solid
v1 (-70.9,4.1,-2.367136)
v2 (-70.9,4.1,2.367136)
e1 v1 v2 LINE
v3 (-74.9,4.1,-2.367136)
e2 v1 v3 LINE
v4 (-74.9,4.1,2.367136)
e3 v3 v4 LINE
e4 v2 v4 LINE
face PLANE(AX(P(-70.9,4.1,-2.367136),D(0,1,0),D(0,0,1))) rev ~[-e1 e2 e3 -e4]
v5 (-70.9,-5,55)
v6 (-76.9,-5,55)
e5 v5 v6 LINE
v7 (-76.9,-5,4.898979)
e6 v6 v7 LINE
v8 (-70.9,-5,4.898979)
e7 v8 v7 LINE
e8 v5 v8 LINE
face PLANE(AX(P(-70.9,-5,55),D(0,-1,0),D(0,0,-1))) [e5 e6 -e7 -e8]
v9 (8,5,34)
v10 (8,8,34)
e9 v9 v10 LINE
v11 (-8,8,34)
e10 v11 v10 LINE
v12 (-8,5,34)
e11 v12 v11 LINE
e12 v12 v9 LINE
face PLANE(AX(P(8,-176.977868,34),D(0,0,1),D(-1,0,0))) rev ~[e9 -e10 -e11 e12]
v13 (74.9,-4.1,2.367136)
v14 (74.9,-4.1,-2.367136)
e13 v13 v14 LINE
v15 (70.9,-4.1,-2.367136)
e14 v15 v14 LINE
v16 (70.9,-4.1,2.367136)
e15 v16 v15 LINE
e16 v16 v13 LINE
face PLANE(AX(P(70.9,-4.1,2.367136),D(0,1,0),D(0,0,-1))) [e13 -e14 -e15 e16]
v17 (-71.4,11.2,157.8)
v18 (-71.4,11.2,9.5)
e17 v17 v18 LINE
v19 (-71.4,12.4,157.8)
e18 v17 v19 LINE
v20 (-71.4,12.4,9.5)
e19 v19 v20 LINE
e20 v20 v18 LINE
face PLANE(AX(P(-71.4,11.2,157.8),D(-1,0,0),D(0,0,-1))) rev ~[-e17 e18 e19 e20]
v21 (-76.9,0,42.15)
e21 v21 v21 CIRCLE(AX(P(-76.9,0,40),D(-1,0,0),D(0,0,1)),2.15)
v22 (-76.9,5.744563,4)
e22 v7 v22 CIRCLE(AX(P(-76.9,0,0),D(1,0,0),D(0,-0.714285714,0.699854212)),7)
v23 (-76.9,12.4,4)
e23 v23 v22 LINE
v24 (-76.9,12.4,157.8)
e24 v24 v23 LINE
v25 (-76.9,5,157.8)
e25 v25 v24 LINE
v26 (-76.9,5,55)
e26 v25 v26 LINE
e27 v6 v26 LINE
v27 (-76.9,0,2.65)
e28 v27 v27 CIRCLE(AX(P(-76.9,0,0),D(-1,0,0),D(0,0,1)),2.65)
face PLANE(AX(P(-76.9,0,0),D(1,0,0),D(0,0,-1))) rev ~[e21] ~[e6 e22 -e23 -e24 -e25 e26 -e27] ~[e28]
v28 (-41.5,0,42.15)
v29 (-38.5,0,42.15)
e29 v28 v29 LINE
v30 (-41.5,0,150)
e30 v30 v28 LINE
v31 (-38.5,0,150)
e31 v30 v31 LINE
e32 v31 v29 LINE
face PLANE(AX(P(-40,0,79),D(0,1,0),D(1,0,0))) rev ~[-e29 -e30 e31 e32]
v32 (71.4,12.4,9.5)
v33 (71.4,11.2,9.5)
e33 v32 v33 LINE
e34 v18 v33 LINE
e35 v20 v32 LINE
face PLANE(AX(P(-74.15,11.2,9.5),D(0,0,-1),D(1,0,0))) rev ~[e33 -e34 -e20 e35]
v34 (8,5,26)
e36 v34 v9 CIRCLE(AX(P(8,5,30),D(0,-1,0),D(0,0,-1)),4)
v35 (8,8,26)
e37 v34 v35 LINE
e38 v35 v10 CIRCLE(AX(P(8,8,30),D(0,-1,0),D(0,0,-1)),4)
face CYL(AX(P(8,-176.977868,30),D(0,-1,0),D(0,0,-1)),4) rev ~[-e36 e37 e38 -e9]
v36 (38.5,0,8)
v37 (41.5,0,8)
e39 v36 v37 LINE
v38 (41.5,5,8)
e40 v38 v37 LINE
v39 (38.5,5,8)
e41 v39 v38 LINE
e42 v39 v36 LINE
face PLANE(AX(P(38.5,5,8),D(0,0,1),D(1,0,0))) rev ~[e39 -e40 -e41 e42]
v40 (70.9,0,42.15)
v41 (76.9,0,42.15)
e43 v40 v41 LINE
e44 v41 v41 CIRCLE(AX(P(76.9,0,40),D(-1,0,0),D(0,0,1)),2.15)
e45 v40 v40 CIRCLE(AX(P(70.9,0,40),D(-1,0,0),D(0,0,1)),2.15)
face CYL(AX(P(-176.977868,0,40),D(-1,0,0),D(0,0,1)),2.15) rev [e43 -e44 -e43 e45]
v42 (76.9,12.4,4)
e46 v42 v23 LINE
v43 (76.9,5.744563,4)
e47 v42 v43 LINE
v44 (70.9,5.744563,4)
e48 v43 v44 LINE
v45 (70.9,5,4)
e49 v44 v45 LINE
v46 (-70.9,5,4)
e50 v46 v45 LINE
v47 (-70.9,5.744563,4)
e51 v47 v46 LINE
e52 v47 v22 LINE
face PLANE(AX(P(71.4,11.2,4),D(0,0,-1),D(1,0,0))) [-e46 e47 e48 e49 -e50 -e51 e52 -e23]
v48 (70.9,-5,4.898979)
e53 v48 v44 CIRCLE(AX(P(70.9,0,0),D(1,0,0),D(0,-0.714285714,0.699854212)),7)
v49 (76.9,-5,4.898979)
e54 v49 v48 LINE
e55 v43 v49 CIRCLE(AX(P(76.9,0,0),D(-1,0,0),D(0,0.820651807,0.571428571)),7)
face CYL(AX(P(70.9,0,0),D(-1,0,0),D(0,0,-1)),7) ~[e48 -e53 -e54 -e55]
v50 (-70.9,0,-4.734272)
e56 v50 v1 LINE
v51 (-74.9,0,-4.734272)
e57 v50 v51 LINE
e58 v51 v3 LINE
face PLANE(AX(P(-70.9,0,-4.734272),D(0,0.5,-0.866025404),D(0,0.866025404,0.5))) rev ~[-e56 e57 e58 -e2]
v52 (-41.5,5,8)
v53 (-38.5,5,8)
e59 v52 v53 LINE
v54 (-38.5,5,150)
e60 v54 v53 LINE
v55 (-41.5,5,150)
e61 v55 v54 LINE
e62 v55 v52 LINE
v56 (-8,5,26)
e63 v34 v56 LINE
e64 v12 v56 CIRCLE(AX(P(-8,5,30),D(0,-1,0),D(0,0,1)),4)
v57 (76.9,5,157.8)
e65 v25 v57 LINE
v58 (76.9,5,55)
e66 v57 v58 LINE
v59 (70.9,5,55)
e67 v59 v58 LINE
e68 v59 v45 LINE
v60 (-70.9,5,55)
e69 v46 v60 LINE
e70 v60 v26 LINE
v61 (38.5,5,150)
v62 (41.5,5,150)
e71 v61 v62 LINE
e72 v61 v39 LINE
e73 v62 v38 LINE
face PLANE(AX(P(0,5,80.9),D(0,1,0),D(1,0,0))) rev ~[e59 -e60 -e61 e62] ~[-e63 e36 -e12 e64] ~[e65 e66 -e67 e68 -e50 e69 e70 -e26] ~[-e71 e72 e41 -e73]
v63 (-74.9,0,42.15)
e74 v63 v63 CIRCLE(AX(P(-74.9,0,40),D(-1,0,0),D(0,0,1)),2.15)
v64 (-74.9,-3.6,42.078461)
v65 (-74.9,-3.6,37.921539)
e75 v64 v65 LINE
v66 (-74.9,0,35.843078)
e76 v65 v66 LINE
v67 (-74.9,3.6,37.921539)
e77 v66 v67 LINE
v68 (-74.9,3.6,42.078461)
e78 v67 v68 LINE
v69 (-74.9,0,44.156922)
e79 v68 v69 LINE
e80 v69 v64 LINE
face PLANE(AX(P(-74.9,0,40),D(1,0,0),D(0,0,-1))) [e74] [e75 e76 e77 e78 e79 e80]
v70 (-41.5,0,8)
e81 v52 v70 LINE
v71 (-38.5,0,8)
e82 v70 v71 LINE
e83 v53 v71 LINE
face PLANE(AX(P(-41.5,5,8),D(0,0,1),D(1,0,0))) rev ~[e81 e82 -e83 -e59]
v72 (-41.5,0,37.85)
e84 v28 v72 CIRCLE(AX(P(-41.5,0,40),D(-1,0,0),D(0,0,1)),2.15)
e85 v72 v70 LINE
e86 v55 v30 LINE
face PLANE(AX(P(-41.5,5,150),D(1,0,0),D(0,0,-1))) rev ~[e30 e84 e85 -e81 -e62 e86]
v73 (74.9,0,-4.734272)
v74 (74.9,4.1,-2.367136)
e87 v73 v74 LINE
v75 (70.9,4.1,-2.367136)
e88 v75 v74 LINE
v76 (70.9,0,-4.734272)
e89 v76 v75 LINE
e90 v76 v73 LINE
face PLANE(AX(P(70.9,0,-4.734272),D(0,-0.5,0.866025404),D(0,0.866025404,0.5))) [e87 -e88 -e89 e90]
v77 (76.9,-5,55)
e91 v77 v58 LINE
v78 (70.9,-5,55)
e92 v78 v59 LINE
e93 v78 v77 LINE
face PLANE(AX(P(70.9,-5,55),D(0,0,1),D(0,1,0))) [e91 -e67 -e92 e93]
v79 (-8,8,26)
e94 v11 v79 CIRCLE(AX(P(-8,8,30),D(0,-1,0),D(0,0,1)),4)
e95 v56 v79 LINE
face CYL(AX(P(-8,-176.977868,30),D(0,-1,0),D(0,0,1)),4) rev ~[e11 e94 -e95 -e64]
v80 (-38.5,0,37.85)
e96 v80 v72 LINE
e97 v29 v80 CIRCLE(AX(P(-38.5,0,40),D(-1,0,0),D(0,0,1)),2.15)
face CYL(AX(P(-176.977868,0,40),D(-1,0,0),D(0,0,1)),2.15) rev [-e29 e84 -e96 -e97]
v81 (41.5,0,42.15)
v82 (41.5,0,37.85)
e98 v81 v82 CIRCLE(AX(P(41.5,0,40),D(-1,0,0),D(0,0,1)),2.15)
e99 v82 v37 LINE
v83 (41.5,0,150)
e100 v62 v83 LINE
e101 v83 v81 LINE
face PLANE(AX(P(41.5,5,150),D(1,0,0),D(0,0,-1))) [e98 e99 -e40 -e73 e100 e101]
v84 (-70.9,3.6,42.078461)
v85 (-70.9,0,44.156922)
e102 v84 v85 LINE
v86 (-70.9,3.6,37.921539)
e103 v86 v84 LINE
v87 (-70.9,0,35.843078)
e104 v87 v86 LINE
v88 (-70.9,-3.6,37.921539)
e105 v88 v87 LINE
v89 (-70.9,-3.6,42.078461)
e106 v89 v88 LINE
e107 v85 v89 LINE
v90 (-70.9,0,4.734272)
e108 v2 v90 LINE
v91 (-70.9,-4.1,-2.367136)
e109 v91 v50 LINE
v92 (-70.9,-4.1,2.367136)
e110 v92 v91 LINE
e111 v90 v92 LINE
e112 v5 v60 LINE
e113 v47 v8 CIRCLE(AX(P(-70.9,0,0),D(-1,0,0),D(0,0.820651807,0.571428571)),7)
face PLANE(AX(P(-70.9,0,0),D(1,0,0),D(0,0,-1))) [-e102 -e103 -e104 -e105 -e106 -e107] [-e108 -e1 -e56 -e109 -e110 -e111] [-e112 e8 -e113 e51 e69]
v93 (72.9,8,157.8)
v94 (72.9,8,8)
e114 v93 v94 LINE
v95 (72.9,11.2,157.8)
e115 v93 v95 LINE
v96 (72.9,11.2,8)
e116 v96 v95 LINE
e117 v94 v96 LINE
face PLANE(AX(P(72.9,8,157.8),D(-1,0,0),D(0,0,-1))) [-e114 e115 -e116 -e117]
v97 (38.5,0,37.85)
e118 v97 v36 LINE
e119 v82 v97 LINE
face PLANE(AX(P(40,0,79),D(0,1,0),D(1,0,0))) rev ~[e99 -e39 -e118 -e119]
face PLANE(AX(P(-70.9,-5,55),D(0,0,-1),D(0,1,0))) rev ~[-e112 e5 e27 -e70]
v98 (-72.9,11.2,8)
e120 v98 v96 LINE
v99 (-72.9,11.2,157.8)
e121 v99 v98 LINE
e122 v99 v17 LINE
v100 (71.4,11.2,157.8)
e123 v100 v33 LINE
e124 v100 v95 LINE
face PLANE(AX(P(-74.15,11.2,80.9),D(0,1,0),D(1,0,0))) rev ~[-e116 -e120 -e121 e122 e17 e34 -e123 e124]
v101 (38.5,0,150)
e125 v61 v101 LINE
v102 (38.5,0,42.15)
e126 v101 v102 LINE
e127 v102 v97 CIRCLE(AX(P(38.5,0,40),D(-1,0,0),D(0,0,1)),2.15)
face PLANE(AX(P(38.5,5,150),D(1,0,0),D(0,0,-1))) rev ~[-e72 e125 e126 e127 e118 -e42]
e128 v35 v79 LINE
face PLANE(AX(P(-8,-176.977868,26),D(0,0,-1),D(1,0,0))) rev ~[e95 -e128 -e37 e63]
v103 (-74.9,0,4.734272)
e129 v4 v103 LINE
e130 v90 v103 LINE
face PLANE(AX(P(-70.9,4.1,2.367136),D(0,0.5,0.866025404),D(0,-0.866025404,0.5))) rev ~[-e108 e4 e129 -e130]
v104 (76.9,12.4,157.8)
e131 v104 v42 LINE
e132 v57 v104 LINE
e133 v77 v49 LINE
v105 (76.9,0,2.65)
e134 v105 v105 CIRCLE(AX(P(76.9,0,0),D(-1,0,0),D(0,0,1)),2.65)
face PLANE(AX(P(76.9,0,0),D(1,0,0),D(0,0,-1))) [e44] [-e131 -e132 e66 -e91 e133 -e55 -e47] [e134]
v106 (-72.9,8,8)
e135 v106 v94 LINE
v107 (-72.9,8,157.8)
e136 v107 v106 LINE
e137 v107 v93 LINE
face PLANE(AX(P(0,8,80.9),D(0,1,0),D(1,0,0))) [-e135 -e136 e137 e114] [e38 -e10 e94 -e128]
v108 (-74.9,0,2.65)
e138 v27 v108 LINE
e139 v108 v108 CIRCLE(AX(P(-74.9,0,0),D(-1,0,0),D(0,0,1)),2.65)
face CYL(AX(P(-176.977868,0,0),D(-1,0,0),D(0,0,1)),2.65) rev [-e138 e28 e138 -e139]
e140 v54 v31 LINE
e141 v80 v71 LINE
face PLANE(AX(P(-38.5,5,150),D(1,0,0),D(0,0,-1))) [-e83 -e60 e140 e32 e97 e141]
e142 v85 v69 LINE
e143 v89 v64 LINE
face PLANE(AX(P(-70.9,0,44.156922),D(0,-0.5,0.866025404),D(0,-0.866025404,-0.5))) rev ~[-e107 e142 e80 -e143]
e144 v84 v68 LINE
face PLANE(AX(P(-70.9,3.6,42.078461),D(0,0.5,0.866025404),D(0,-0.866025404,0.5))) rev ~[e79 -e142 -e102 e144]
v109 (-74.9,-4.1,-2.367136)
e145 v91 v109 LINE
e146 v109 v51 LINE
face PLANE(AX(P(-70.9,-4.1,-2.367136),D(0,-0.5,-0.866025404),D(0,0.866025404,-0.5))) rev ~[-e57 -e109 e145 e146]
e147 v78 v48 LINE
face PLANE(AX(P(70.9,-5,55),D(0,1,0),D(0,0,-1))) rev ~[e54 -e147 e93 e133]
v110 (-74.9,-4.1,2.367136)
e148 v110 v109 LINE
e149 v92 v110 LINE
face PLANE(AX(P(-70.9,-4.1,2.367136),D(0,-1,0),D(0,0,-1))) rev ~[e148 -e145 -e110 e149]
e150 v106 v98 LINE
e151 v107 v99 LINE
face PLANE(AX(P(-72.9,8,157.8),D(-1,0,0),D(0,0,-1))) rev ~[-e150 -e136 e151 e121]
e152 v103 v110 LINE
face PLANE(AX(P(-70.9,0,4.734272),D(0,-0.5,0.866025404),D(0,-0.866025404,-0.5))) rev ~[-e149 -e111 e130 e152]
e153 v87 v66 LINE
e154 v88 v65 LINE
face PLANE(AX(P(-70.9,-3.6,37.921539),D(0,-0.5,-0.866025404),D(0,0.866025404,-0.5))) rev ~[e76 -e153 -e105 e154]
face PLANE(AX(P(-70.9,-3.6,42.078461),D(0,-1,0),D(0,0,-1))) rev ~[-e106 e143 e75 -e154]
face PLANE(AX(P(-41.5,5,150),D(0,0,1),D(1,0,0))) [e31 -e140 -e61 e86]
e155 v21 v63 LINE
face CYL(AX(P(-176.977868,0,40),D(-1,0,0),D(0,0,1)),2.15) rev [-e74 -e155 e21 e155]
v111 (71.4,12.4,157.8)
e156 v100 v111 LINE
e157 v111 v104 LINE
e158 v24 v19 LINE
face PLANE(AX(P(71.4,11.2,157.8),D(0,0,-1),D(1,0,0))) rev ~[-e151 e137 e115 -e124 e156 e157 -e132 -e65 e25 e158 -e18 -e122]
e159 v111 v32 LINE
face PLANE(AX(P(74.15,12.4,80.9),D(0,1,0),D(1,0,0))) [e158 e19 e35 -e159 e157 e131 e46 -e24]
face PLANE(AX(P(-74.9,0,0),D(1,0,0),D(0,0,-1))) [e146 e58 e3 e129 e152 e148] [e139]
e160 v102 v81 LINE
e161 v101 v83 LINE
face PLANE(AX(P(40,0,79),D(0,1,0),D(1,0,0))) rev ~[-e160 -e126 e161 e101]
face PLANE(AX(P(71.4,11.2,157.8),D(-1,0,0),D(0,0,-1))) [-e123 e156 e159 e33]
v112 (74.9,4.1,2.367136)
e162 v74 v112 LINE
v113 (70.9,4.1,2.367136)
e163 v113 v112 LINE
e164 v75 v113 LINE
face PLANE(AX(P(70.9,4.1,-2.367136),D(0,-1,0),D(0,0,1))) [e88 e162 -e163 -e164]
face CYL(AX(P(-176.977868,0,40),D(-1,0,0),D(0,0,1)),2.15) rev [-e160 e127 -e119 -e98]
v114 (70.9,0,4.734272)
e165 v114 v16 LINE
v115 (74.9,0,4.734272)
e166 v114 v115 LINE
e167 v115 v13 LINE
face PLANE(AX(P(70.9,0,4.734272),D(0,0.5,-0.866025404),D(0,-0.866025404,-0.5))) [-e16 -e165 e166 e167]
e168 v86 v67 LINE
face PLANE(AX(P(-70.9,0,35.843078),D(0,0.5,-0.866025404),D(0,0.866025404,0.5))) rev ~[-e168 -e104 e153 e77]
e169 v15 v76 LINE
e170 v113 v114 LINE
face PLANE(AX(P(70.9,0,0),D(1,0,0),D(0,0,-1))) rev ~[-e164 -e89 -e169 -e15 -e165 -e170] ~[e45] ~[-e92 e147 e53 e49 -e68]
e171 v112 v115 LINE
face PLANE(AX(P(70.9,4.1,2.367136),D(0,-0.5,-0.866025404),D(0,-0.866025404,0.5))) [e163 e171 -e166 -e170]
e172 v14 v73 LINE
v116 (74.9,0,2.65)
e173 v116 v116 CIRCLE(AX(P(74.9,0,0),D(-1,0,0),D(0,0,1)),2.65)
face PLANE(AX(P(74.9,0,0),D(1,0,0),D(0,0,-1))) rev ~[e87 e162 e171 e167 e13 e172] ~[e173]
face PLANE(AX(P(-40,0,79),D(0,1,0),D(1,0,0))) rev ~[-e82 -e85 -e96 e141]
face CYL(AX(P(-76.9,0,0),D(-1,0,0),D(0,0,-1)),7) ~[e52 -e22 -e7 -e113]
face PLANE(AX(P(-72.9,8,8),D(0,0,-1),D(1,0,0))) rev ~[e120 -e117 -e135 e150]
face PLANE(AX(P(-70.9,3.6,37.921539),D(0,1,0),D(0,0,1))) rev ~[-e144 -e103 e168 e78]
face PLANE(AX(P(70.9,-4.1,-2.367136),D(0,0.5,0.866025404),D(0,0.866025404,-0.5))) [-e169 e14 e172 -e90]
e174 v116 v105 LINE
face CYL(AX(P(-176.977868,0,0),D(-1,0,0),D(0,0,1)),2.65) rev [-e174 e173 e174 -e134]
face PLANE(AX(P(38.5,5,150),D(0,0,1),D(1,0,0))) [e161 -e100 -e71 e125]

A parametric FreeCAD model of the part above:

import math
import FreeCAD as App
import Part
import Sketcher
Q = App.Units.Quantity

doc = App.newDocument("Part")
body = doc.addObject("PartDesign::Body", "Body")

sketch1 = body.newObject("Sketcher::SketchObject", "Sketch")
sketch1.AttachmentSupport = (doc.getObject("XZ_Plane"), [""])
sketch1.MapMode = "FlatFace"
sketch1.AttachmentOffset = App.Placement(App.Vector(0, 0, -5), App.Rotation())
sketch1.addGeometry([
    Part.LineSegment(App.Vector(-77, 4, 0), App.Vector(-77, 158, 0)),
    Part.LineSegment(App.Vector(-77, 158, 0), App.Vector(77, 158, 0)),
    Part.LineSegment(App.Vector(77, 158, 0), App.Vector(77, 4, 0)),
    Part.LineSegment(App.Vector(77, 4, 0), App.Vector(-77, 4, 0)),
], False)
sketch1.addConstraint([
    Sketcher.Constraint("Coincident", 0, 2, 1, 1),
    Sketcher.Constraint("Coincident", 1, 2, 2, 1),
    Sketcher.Constraint("Coincident", 2, 2, 3, 1),
    Sketcher.Constraint("Coincident", 3, 2, 0, 1),
    Sketcher.Constraint("Vertical", 0),
    Sketcher.Constraint("Horizontal", 1),
    Sketcher.Constraint("Vertical", 2),
    Sketcher.Constraint("Horizontal", 3),
    Sketcher.Constraint("Equal", 3, 0),
    Sketcher.Constraint("DistanceX", 1, 1, 1, 2, 153.8),
    Sketcher.Constraint("DistanceY", -1, 1, 2, 2, 4.0),
    Sketcher.Constraint("DistanceX", 0, 2, -1, 1, 76.9),
])
pad1 = body.newObject("PartDesign::Pad", "Pad")
pad1.Profile = sketch1
pad1.Length = 3
pad1.Reversed = True

sketch2 = body.newObject("Sketcher::SketchObject", "Sketch001")
sketch2.AttachmentSupport = (doc.getObject("XZ_Plane"), [""])
sketch2.MapMode = "FlatFace"
sketch2.AttachmentOffset = App.Placement(App.Vector(0, 0, -8), App.Rotation())
sketch2.addGeometry([
    Part.LineSegment(App.Vector(-76.9, 4, 0), App.Vector(-76.9, 157.8, 0)),
    Part.LineSegment(App.Vector(-76.9, 157.8, 0), App.Vector(-72.9, 157.8, 0)),
    Part.LineSegment(App.Vector(-72.9, 157.8, 0), App.Vector(-72.9, 4, 0)),
    Part.LineSegment(App.Vector(-72.9, 4, 0), App.Vector(-76.9, 4, 0)),
], False)
sketch2.addConstraint([
    Sketcher.Constraint("Coincident", 0, 2, 1, 1),
    Sketcher.Constraint("Coincident", 1, 2, 2, 1),
    Sketcher.Constraint("Coincident", 2, 2, 3, 1),
    Sketcher.Constraint("Coincident", 3, 2, 0, 1),
    Sketcher.Constraint("Vertical", 0),
    Sketcher.Constraint("Horizontal", 1),
    Sketcher.Constraint("Vertical", 2),
    Sketcher.Constraint("Horizontal", 3),
    Sketcher.Constraint("DistanceX", 1, 1, 1, 2, 4.0),
    Sketcher.Constraint("DistanceY", 0, 1, 0, 2, 153.8),
    Sketcher.Constraint("DistanceY", -1, 1, 2, 2, 4.0),
    Sketcher.Constraint("DistanceX", 0, 2, -1, 1, 76.9),
])
pad2 = body.newObject("PartDesign::Pad", "Pad001")
pad2.Profile = sketch2
pad2.Length = 3.2
pad2.Reversed = True

sketch3 = body.newObject("Sketcher::SketchObject", "Sketch002")
sketch3.AttachmentSupport = (doc.getObject("XZ_Plane"), [""])
sketch3.MapMode = "FlatFace"
sketch3.AttachmentOffset = App.Placement(App.Vector(0, 0, -8), App.Rotation())
sketch3.addGeometry([
    Part.LineSegment(App.Vector(72.9, 4, 0), App.Vector(72.9, 157.8, 0)),
    Part.LineSegment(App.Vector(72.9, 157.8, 0), App.Vector(76.9, 157.8, 0)),
    Part.LineSegment(App.Vector(76.9, 157.8, 0), App.Vector(76.9, 4, 0)),
    Part.LineSegment(App.Vector(76.9, 4, 0), App.Vector(72.9, 4, 0)),
], False)
sketch3.addConstraint([
    Sketcher.Constraint("Coincident", 0, 2, 1, 1),
    Sketcher.Constraint("Coincident", 1, 2, 2, 1),
    Sketcher.Constraint("Coincident", 2, 2, 3, 1),
    Sketcher.Constraint("Coincident", 3, 2, 0, 1),
    Sketcher.Constraint("Vertical", 0),
    Sketcher.Constraint("Horizontal", 1),
    Sketcher.Constraint("Vertical", 2),
    Sketcher.Constraint("Horizontal", 3),
    Sketcher.Constraint("DistanceX", 1, 1, 1, 2, 4.0),
    Sketcher.Constraint("DistanceY", 0, 1, 0, 2, 153.8),
    Sketcher.Constraint("DistanceY", -1, 1, 2, 2, 4.0),
    Sketcher.Constraint("DistanceX", -1, 1, 0, 2, 72.9),
])
pad3 = body.newObject("PartDesign::Pad", "Pad002")
pad3.Profile = sketch3
pad3.Length = 3.2
pad3.Reversed = True

sketch4 = body.newObject("Sketcher::SketchObject", "Sketch003")
sketch4.AttachmentSupport = (doc.getObject("XZ_Plane"), [""])
sketch4.MapMode = "FlatFace"
sketch4.AttachmentOffset = App.Placement(App.Vector(0, 0, -8), App.Rotation())
sketch4.addGeometry([
    Part.LineSegment(App.Vector(-72.9, 4, 0), App.Vector(-72.9, 8, 0)),
    Part.LineSegment(App.Vector(-72.9, 8, 0), App.Vector(72.9, 8, 0)),
    Part.LineSegment(App.Vector(72.9, 8, 0), App.Vector(72.9, 4, 0)),
    Part.LineSegment(App.Vector(72.9, 4, 0), App.Vector(-72.9, 4, 0)),
], False)
sketch4.addConstraint([
    Sketcher.Constraint("Coincident", 0, 2, 1, 1),
    Sketcher.Constraint("Coincident", 1, 2, 2, 1),
    Sketcher.Constraint("Coincident", 2, 2, 3, 1),
    Sketcher.Constraint("Coincident", 3, 2, 0, 1),
    Sketcher.Constraint("Vertical", 0),
    Sketcher.Constraint("Horizontal", 1),
    Sketcher.Constraint("Vertical", 2),
    Sketcher.Constraint("Horizontal", 3),
    Sketcher.Constraint("DistanceY", 0, 1, 0, 2, 4.0),
    Sketcher.Constraint("DistanceX", 1, 1, 1, 2, 145.8),
    Sketcher.Constraint("DistanceY", -1, 1, 0, 2, 8.0),
    Sketcher.Constraint("DistanceX", 0, 2, -1, 1, 72.9),
])
pad4 = body.newObject("PartDesign::Pad", "Pad003")
pad4.Profile = sketch4
pad4.Length = 3.2
pad4.Reversed = True

sketch5 = body.newObject("Sketcher::SketchObject", "Sketch004")
sketch5.AttachmentSupport = (doc.getObject("XZ_Plane"), [""])
sketch5.MapMode = "FlatFace"
sketch5.AttachmentOffset = App.Placement(App.Vector(0, 0, -11.2), App.Rotation())
sketch5.addGeometry([
    Part.LineSegment(App.Vector(-77, 4, 0), App.Vector(-77, 158, 0)),
    Part.LineSegment(App.Vector(-77, 158, 0), App.Vector(-71, 158, 0)),
    Part.LineSegment(App.Vector(-71, 158, 0), App.Vector(-71, 4, 0)),
    Part.LineSegment(App.Vector(-71, 4, 0), App.Vector(-77, 4, 0)),
], False)
sketch5.addConstraint([
    Sketcher.Constraint("Coincident", 0, 2, 1, 1),
    Sketcher.Constraint("Coincident", 1, 2, 2, 1),
    Sketcher.Constraint("Coincident", 2, 2, 3, 1),
    Sketcher.Constraint("Coincident", 3, 2, 0, 1),
    Sketcher.Constraint("Vertical", 0),
    Sketcher.Constraint("Horizontal", 1),
    Sketcher.Constraint("Vertical", 2),
    Sketcher.Constraint("Horizontal", 3),
    Sketcher.Constraint("DistanceX", 1, 1, 1, 2, 5.5),
    Sketcher.Constraint("DistanceY", 0, 1, 0, 2, 153.8),
    Sketcher.Constraint("DistanceY", -1, 1, 2, 2, 4.0),
    Sketcher.Constraint("DistanceX", 0, 2, -1, 1, 76.9),
])
pad5 = body.newObject("PartDesign::Pad", "Pad004")
pad5.Profile = sketch5
pad5.Length = 1.2
pad5.Reversed = True

sketch6 = body.newObject("Sketcher::SketchObject", "Sketch005")
sketch6.AttachmentSupport = (doc.getObject("XZ_Plane"), [""])
sketch6.MapMode = "FlatFace"
sketch6.AttachmentOffset = App.Placement(App.Vector(0, 0, -11.2), App.Rotation())
sketch6.addGeometry([
    Part.LineSegment(App.Vector(71, 4, 0), App.Vector(71, 158, 0)),
    Part.LineSegment(App.Vector(71, 158, 0), App.Vector(77, 158, 0)),
    Part.LineSegment(App.Vector(77, 158, 0), App.Vector(77, 4, 0)),
    Part.LineSegment(App.Vector(77, 4, 0), App.Vector(71, 4, 0)),
], False)
sketch6.addConstraint([
    Sketcher.Constraint("Coincident", 0, 2, 1, 1),
    Sketcher.Constraint("Coincident", 1, 2, 2, 1),
    Sketcher.Constraint("Coincident", 2, 2, 3, 1),
    Sketcher.Constraint("Coincident", 3, 2, 0, 1),
    Sketcher.Constraint("Vertical", 0),
    Sketcher.Constraint("Horizontal", 1),
    Sketcher.Constraint("Vertical", 2),
    Sketcher.Constraint("Horizontal", 3),
    Sketcher.Constraint("DistanceX", 1, 1, 1, 2, 5.5),
    Sketcher.Constraint("DistanceY", 0, 1, 0, 2, 153.8),
    Sketcher.Constraint("DistanceY", -1, 1, 2, 2, 4.0),
    Sketcher.Constraint("DistanceX", -1, 1, 0, 2, 71.4),
])
pad6 = body.newObject("PartDesign::Pad", "Pad005")
pad6.Profile = sketch6
pad6.Length = 1.2
pad6.Reversed = True

sketch7 = body.newObject("Sketcher::SketchObject", "Sketch006")
sketch7.AttachmentSupport = (doc.getObject("XZ_Plane"), [""])
sketch7.MapMode = "FlatFace"
sketch7.AttachmentOffset = App.Placement(App.Vector(0, 0, -11.2), App.Rotation())
sketch7.addGeometry([
    Part.LineSegment(App.Vector(-74, 4, 0), App.Vector(-74, 10, 0)),
    Part.LineSegment(App.Vector(-74, 10, 0), App.Vector(74, 10, 0)),
    Part.LineSegment(App.Vector(74, 10, 0), App.Vector(74, 4, 0)),
    Part.LineSegment(App.Vector(74, 4, 0), App.Vector(-74, 4, 0)),
], False)
sketch7.addConstraint([
    Sketcher.Constraint("Coincident", 0, 2, 1, 1),
    Sketcher.Constraint("Coincident", 1, 2, 2, 1),
    Sketcher.Constraint("Coincident", 2, 2, 3, 1),
    Sketcher.Constraint("Coincident", 3, 2, 0, 1),
    Sketcher.Constraint("Vertical", 0),
    Sketcher.Constraint("Horizontal", 1),
    Sketcher.Constraint("Vertical", 2),
    Sketcher.Constraint("Horizontal", 3),
    Sketcher.Constraint("DistanceX", 1, 1, 1, 2, 148.3),
    Sketcher.Constraint("DistanceY", 0, 1, 0, 2, 5.5),
    Sketcher.Constraint("DistanceY", -1, 1, 2, 2, 4.0),
    Sketcher.Constraint("DistanceX", 0, 2, -1, 1, 74.15),
])
pad7 = body.newObject("PartDesign::Pad", "Pad006")
pad7.Profile = sketch7
pad7.Length = 1.2
pad7.Reversed = True

sketch8 = body.newObject("Sketcher::SketchObject", "Sketch007")
sketch8.AttachmentSupport = (doc.getObject("XZ_Plane"), [""])
sketch8.MapMode = "FlatFace"
sketch8.addGeometry([
    Part.LineSegment(App.Vector(8, 26, 0), App.Vector(-8, 26, 0)),
    Part.ArcOfCircle(Part.Circle(App.Vector(-8, 30, 0), App.Vector(0, 0, 1), 4), math.radians(90), math.radians(270)),
    Part.LineSegment(App.Vector(-8, 34, 0), App.Vector(8, 34, 0)),
    Part.ArcOfCircle(Part.Circle(App.Vector(8, 30, 0), App.Vector(0, 0, 1), 4), math.radians(-90), math.radians(90)),
], False)
sketch8.addConstraint([
    Sketcher.Constraint("Tangent", 0, 2, 1, 2),
    Sketcher.Constraint("Tangent", 1, 1, 2, 1),
    Sketcher.Constraint("Tangent", 2, 2, 3, 2),
    Sketcher.Constraint("Tangent", 3, 1, 0, 1),
    Sketcher.Constraint("Horizontal", 0),
    Sketcher.Constraint("Horizontal", 2),
    Sketcher.Constraint("Radius", 1, 4.0),
    Sketcher.Constraint("DistanceX", 0, 2, 0, 1, 16.0),
    Sketcher.Constraint("DistanceX", 1, 3, -1, 1, 8.0),
    Sketcher.Constraint("DistanceY", -1, 1, 1, 3, 30.0),
])
pocket1 = body.newObject("PartDesign::Pocket", "Pocket")
pocket1.Profile = sketch8
pocket1.Type = "ThroughAll"
pocket1.Midplane = True

sketch9 = body.newObject("Sketcher::SketchObject", "Sketch008")
sketch9.AttachmentSupport = (doc.getObject("XZ_Plane"), [""])
sketch9.MapMode = "FlatFace"
sketch9.AttachmentOffset = App.Placement(App.Vector(0, 0, -5), App.Rotation())
sketch9.addGeometry([
    Part.LineSegment(App.Vector(-41.5, 8, 0), App.Vector(-41.5, 150, 0)),
    Part.LineSegment(App.Vector(-41.5, 150, 0), App.Vector(-38.5, 150, 0)),
    Part.LineSegment(App.Vector(-38.5, 150, 0), App.Vector(-38.5, 8, 0)),
    Part.LineSegment(App.Vector(-38.5, 8, 0), App.Vector(-41.5, 8, 0)),
    Part.LineSegment(App.Vector(38.5, 8, 0), App.Vector(38.5, 150, 0)),
    Part.LineSegment(App.Vector(38.5, 150, 0), App.Vector(41.5, 150, 0)),
    Part.LineSegment(App.Vector(41.5, 150, 0), App.Vector(41.5, 8, 0)),
    Part.LineSegment(App.Vector(41.5, 8, 0), App.Vector(38.5, 8, 0)),
], False)
sketch9.addConstraint([
    Sketcher.Constraint("Coincident", 0, 2, 1, 1),
    Sketcher.Constraint("Coincident", 1, 2, 2, 1),
    Sketcher.Constraint("Coincident", 2, 2, 3, 1),
    Sketcher.Constraint("Coincident", 3, 2, 0, 1),
    Sketcher.Constraint("Coincident", 4, 2, 5, 1),
    Sketcher.Constraint("Coincident", 5, 2, 6, 1),
    Sketcher.Constraint("Coincident", 6, 2, 7, 1),
    Sketcher.Constraint("Coincident", 7, 2, 4, 1),
    Sketcher.Constraint("Vertical", 0),
    Sketcher.Constraint("Horizontal", 1),
    Sketcher.Constraint("Vertical", 2),
    Sketcher.Constraint("Horizontal", 3),
    Sketcher.Constraint("Vertical", 4),
    Sketcher.Constraint("Horizontal", 5),
    Sketcher.Constraint("Vertical", 6),
    Sketcher.Constraint("Horizontal", 7),
    Sketcher.Constraint("Symmetric", 1, 2, 4, 2, -2),
    Sketcher.Constraint("Symmetric", 3, 2, 6, 2, -2),
    Sketcher.Constraint("DistanceX", 1, 1, 1, 2, 3.0),
    Sketcher.Constraint("DistanceY", 0, 1, 0, 2, 142.0),
    Sketcher.Constraint("DistanceY", -1, 1, 0, 2, 150.0),
    Sketcher.Constraint("DistanceX", 1, 2, 4, 2, 77.0),
])
pad8 = body.newObject("PartDesign::Pad", "Pad007")
pad8.Profile = sketch9
pad8.Length = 5

sketch10 = body.newObject("Sketcher::SketchObject", "Sketch009")
sketch10.AttachmentSupport = (doc.getObject("YZ_Plane"), [""])
sketch10.MapMode = "FlatFace"
sketch10.AttachmentOffset = App.Placement(App.Vector(0, 0, 70.9), App.Rotation())
sketch10.addGeometry([
    Part.LineSegment(App.Vector(5, 55, 0), App.Vector(-5, 55, 0)),
    Part.LineSegment(App.Vector(-5, 55, 0), App.Vector(-5, 0, 0)),
    Part.LineSegment(App.Vector(-5, 0, 0), App.Vector(5, 0, 0)),
    Part.LineSegment(App.Vector(5, 0, 0), App.Vector(5, 55, 0)),
], False)
sketch10.addConstraint([
    Sketcher.Constraint("Coincident", 0, 2, 1, 1),
    Sketcher.Constraint("Coincident", 1, 2, 2, 1),
    Sketcher.Constraint("Coincident", 2, 2, 3, 1),
    Sketcher.Constraint("Coincident", 3, 2, 0, 1),
    Sketcher.Constraint("Horizontal", 0),
    Sketcher.Constraint("Vertical", 1),
    Sketcher.Constraint("Horizontal", 2),
    Sketcher.Constraint("Vertical", 3),
    Sketcher.Constraint("Symmetric", 1, 2, 2, 2, -1, 1),
    Sketcher.Constraint("DistanceX", 0, 2, 0, 1, 10.0),
    Sketcher.Constraint("DistanceY", 1, 2, 1, 1, 55.0),
])
pad9 = body.newObject("PartDesign::Pad", "Pad008")
pad9.Profile = sketch10
pad9.Length = 6

sketch11 = body.newObject("Sketcher::SketchObject", "Sketch010")
sketch11.AttachmentSupport = (doc.getObject("YZ_Plane"), [""])
sketch11.MapMode = "FlatFace"
sketch11.AttachmentOffset = App.Placement(App.Vector(0, 0, 70.9), App.Rotation())
sketch11.addGeometry(Part.Circle(App.Vector(0, 0, 0), App.Vector(0, 0, 1), 7), False)
sketch11.addConstraint([
    Sketcher.Constraint("Coincident", 0, 3, -1, 1),
    Sketcher.Constraint("Diameter", 0, 14.0),
])
pad10 = body.newObject("PartDesign::Pad", "Pad009")
pad10.Profile = sketch11
pad10.Length = 6

sketch12 = body.newObject("Sketcher::SketchObject", "Sketch011")
sketch12.AttachmentSupport = (doc.getObject("YZ_Plane"), [""])
sketch12.MapMode = "FlatFace"
sketch12.AttachmentOffset = App.Placement(App.Vector(0, 0, -70.9), App.Rotation())
sketch12.addGeometry([
    Part.LineSegment(App.Vector(5, 55, 0), App.Vector(-5, 55, 0)),
    Part.LineSegment(App.Vector(-5, 55, 0), App.Vector(-5, 0, 0)),
    Part.LineSegment(App.Vector(-5, 0, 0), App.Vector(5, 0, 0)),
    Part.LineSegment(App.Vector(5, 0, 0), App.Vector(5, 55, 0)),
], False)
sketch12.addConstraint([
    Sketcher.Constraint("Coincident", 0, 2, 1, 1),
    Sketcher.Constraint("Coincident", 1, 2, 2, 1),
    Sketcher.Constraint("Coincident", 2, 2, 3, 1),
    Sketcher.Constraint("Coincident", 3, 2, 0, 1),
    Sketcher.Constraint("Horizontal", 0),
    Sketcher.Constraint("Vertical", 1),
    Sketcher.Constraint("Horizontal", 2),
    Sketcher.Constraint("Vertical", 3),
    Sketcher.Constraint("Symmetric", 1, 2, 2, 2, -1, 1),
    Sketcher.Constraint("DistanceX", 0, 2, 0, 1, 10.0),
    Sketcher.Constraint("DistanceY", 1, 2, 1, 1, 55.0),
])
pad11 = body.newObject("PartDesign::Pad", "Pad010")
pad11.Profile = sketch12
pad11.Length = 6
pad11.Reversed = True

sketch13 = body.newObject("Sketcher::SketchObject", "Sketch012")
sketch13.AttachmentSupport = (doc.getObject("YZ_Plane"), [""])
sketch13.MapMode = "FlatFace"
sketch13.AttachmentOffset = App.Placement(App.Vector(0, 0, -76.9), App.Rotation())
sketch13.addGeometry(Part.Circle(App.Vector(0, 0, 0), App.Vector(0, 0, 1), 7), False)
sketch13.addConstraint([
    Sketcher.Constraint("Coincident", 0, 3, -1, 1),
    Sketcher.Constraint("Diameter", 0, 14.0),
])
pad12 = body.newObject("PartDesign::Pad", "Pad011")
pad12.Profile = sketch13
pad12.Length = 6

sketch14 = body.newObject("Sketcher::SketchObject", "Sketch013")
sketch14.AttachmentSupport = (doc.getObject("YZ_Plane"), [""])
sketch14.MapMode = "FlatFace"
sketch14.addGeometry([
    Part.Circle(App.Vector(0, 0, 0), App.Vector(0, 0, 1), 2.6),
    Part.Circle(App.Vector(0, 40, 0), App.Vector(0, 0, 1), 2.1),
], False)
sketch14.addConstraint([
    Sketcher.Constraint("Coincident", 0, 3, -1, 1),
    Sketcher.Constraint("PointOnObject", 1, 3, -2),
    Sketcher.Constraint("Diameter", 0, 5.3),
    Sketcher.Constraint("Diameter", 1, 4.3),
    Sketcher.Constraint("DistanceY", -1, 1, 1, 3, 40.0),
])
pocket2 = body.newObject("PartDesign::Pocket", "Pocket001")
pocket2.Profile = sketch14
pocket2.Type = "ThroughAll"
pocket2.Midplane = True

sketch15 = body.newObject("Sketcher::SketchObject", "Sketch014")
sketch15.AttachmentSupport = (doc.getObject("YZ_Plane"), [""])
sketch15.MapMode = "FlatFace"
sketch15.AttachmentOffset = App.Placement(App.Vector(0, 0, 70.9), App.Rotation())
sketch15.addGeometry([
    Part.LineSegment(App.Vector(0, -4.7, 0), App.Vector(4.1, -2.4, 0)),
    Part.LineSegment(App.Vector(4.1, -2.4, 0), App.Vector(4.1, 2.4, 0)),
    Part.LineSegment(App.Vector(4.1, 2.4, 0), App.Vector(0, 4.7, 0)),
    Part.LineSegment(App.Vector(0, 4.7, 0), App.Vector(-4.1, 2.4, 0)),
    Part.LineSegment(App.Vector(-4.1, 2.4, 0), App.Vector(-4.1, -2.4, 0)),
    Part.LineSegment(App.Vector(-4.1, -2.4, 0), App.Vector(0, -4.7, 0)),
], False)
sketch15.addConstraint([
    Sketcher.Constraint("Coincident", 0, 2, 1, 1),
    Sketcher.Constraint("Coincident", 1, 2, 2, 1),
    Sketcher.Constraint("Coincident", 2, 2, 3, 1),
    Sketcher.Constraint("Coincident", 3, 2, 4, 1),
    Sketcher.Constraint("Coincident", 4, 2, 5, 1),
    Sketcher.Constraint("Coincident", 5, 2, 0, 1),
    Sketcher.Constraint("Vertical", 1),
    Sketcher.Constraint("Vertical", 4),
    Sketcher.Constraint("Symmetric", 0, 2, 3, 2, -1, 1),
    Sketcher.Constraint("Symmetric", 2, 2, 5, 2, -1, 1),
    Sketcher.Constraint("PointOnObject", 2, 2, -2),
    Sketcher.Constraint("Parallel", 2, 5),
    Sketcher.Constraint("Horizontal", 1, 2, 3, 2),
    Sketcher.Constraint("Angle", 0, Q("30 deg")),
    Sketcher.Constraint("DistanceX", -1, 1, 0, 2, 4.1),
    Sketcher.Constraint("DistanceY", 1, 1, 1, 2, 4.734272),
])
pocket3 = body.newObject("PartDesign::Pocket", "Pocket002")
pocket3.Profile = sketch15
pocket3.Length = 4
pocket3.Reversed = True

sketch16 = body.newObject("Sketcher::SketchObject", "Sketch015")
sketch16.AttachmentSupport = (doc.getObject("YZ_Plane"), [""])
sketch16.MapMode = "FlatFace"
sketch16.AttachmentOffset = App.Placement(App.Vector(0, 0, -70.9), App.Rotation())
sketch16.addGeometry([
    Part.LineSegment(App.Vector(0, -4.7, 0), App.Vector(4.1, -2.4, 0)),
    Part.LineSegment(App.Vector(4.1, -2.4, 0), App.Vector(4.1, 2.4, 0)),
    Part.LineSegment(App.Vector(4.1, 2.4, 0), App.Vector(0, 4.7, 0)),
    Part.LineSegment(App.Vector(0, 4.7, 0), App.Vector(-4.1, 2.4, 0)),
    Part.LineSegment(App.Vector(-4.1, 2.4, 0), App.Vector(-4.1, -2.4, 0)),
    Part.LineSegment(App.Vector(-4.1, -2.4, 0), App.Vector(0, -4.7, 0)),
    Part.LineSegment(App.Vector(0, 35.8, 0), App.Vector(3.6, 37.9, 0)),
    Part.LineSegment(App.Vector(3.6, 37.9, 0), App.Vector(3.6, 42.1, 0)),
    Part.LineSegment(App.Vector(3.6, 42.1, 0), App.Vector(0, 44.2, 0)),
    Part.LineSegment(App.Vector(0, 44.2, 0), App.Vector(-3.6, 42.1, 0)),
    Part.LineSegment(App.Vector(-3.6, 42.1, 0), App.Vector(-3.6, 37.9, 0)),
    Part.LineSegment(App.Vector(-3.6, 37.9, 0), App.Vector(0, 35.8, 0)),
], False)
sketch16.addConstraint([
    Sketcher.Constraint("Coincident", 0, 2, 1, 1),
    Sketcher.Constraint("Coincident", 1, 2, 2, 1),
    Sketcher.Constraint("Coincident", 2, 2, 3, 1),
    Sketcher.Constraint("Coincident", 3, 2, 4, 1),
    Sketcher.Constraint("Coincident", 4, 2, 5, 1),
    Sketcher.Constraint("Coincident", 5, 2, 0, 1),
    Sketcher.Constraint("Coincident", 6, 2, 7, 1),
    Sketcher.Constraint("Coincident", 7, 2, 8, 1),
    Sketcher.Constraint("Coincident", 8, 2, 9, 1),
    Sketcher.Constraint("Coincident", 9, 2, 10, 1),
    Sketcher.Constraint("Coincident", 10, 2, 11, 1),
    Sketcher.Constraint("Coincident", 11, 2, 6, 1),
    Sketcher.Constraint("Vertical", 1),
    Sketcher.Constraint("Vertical", 4),
    Sketcher.Constraint("Vertical", 7),
    Sketcher.Constraint("Vertical", 10),
    Sketcher.Constraint("Symmetric", 0, 2, 3, 2, -1, 1),
    Sketcher.Constraint("Symmetric", 2, 2, 5, 2, -1, 1),
    Sketcher.Constraint("Symmetric", 7, 2, 9, 2, -2),
    Sketcher.Constraint("PointOnObject", 2, 2, -2),
    Sketcher.Constraint("PointOnObject", 8, 2, -2),
    Sketcher.Constraint("PointOnObject", 11, 2, -2),
    Sketcher.Constraint("Parallel", 2, 5),
    Sketcher.Constraint("Parallel", 3, 6),
    Sketcher.Constraint("Parallel", 5, 8),
    Sketcher.Constraint("Parallel", 6, 9),
    Sketcher.Constraint("Parallel", 8, 11),
    Sketcher.Constraint("Angle", 0, Q("30 deg")),
    Sketcher.Constraint("DistanceX", -1, 1, 0, 2, 4.1),
    Sketcher.Constraint("DistanceX", -1, 1, 6, 2, 3.6),
    Sketcher.Constraint("DistanceY", 7, 1, 7, 2, 4.156922),
    Sketcher.Constraint("DistanceY", 1, 1, 1, 2, 4.734272),
    Sketcher.Constraint("DistanceY", -1, 1, 6, 2, 37.921539),
])
pocket4 = body.newObject("PartDesign::Pocket", "Pocket003")
pocket4.Profile = sketch16
pocket4.Length = 4

doc.recompute()
